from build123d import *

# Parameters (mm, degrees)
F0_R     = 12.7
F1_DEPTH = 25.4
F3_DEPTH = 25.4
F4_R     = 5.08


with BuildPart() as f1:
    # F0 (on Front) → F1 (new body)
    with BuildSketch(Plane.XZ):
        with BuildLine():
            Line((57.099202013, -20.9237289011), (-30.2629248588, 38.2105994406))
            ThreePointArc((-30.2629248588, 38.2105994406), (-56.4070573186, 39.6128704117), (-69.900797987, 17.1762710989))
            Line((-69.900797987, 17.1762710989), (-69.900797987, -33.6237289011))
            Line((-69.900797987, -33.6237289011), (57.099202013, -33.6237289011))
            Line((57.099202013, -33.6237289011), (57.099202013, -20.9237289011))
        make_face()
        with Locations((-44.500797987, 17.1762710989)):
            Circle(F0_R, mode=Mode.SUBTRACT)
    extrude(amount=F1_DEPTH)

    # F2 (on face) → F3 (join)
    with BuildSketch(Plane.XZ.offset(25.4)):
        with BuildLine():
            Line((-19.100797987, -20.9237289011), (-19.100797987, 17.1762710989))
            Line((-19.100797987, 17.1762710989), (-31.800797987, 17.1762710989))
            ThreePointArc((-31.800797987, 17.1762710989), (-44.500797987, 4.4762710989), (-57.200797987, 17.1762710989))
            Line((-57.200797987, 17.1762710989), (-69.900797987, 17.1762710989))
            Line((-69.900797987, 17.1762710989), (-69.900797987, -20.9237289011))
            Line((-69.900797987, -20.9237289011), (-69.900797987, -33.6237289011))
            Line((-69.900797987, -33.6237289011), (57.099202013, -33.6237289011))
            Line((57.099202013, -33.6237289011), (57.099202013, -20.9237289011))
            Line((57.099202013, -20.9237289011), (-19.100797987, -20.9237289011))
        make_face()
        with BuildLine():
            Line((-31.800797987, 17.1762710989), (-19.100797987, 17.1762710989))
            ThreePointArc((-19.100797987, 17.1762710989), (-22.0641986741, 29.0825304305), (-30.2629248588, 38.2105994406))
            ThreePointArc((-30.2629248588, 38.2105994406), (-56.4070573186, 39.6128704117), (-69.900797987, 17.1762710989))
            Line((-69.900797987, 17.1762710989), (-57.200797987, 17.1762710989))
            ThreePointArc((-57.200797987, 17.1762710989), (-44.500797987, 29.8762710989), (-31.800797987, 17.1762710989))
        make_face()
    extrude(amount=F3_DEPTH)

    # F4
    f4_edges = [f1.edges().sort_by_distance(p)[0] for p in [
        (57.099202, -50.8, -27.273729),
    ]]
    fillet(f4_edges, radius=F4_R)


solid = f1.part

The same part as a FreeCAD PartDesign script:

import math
import FreeCAD as App
import Part
import Sketcher
Q = App.Units.Quantity


def edges_at(feature, points):
    """Names of the edges that pass closest to the given points."""
    edges = feature.Shape.Edges
    near = lambda p: min(range(len(edges)), key=lambda i: edges[i].distToShape(Part.Vertex(*p))[0])
    return sorted({f"Edge{near(p) + 1}" for p in points})

doc = App.newDocument("Part")
body = doc.addObject("PartDesign::Body", "Body")

sketch1 = body.newObject("Sketcher::SketchObject", "Sketch")
sketch1.AttachmentSupport = (doc.getObject("XZ_Plane"), [""])
sketch1.MapMode = "FlatFace"
sketch1.addGeometry([
    Part.LineSegment(App.Vector(57.099202, -20.923729, 0), App.Vector(-30.262925, 38.210599, 0)),
    Part.ArcOfCircle(Part.Circle(App.Vector(-44.500798, 17.176271, 0), App.Vector(0, 0, 1), 25.4), math.radians(55.906421), math.radians(180)),
    Part.LineSegment(App.Vector(-69.900798, 17.176271, 0), App.Vector(-69.900798, -33.623729, 0)),
    Part.LineSegment(App.Vector(-69.900798, -33.623729, 0), App.Vector(57.099202, -33.623729, 0)),
    Part.LineSegment(App.Vector(57.099202, -33.623729, 0), App.Vector(57.099202, -20.923729, 0)),
    Part.Circle(App.Vector(-44.500798, 17.176271, 0), App.Vector(0, 0, 1), 12.7),
], False)
sketch1.addConstraint([
    Sketcher.Constraint("Tangent", 0, 2, 1, 1),
    Sketcher.Constraint("Tangent", 1, 2, 2, 1),
    Sketcher.Constraint("Coincident", 2, 2, 3, 1),
    Sketcher.Constraint("Coincident", 3, 2, 4, 1),
    Sketcher.Constraint("Coincident", 4, 2, 0, 1),
    Sketcher.Constraint("Vertical", 2),
    Sketcher.Constraint("Horizontal", 3),
    Sketcher.Constraint("Vertical", 4),
    Sketcher.Constraint("Coincident", 5, 3, 1, 3),
    Sketcher.Constraint("Diameter", 5, Q("1 in")),
    Sketcher.Constraint("Radius", 1, Q("1 in")),
    Sketcher.Constraint("DistanceX", 3, 1, 3, 2, Q("5 in")),
    Sketcher.Constraint("DistanceY", 2, 2, 2, 1, Q("2 in")),
    Sketcher.Constraint("DistanceY", 4, 1, 4, 2, Q("0.5 in")),
    Sketcher.Constraint("DistanceX", 1, 3, -1, 1, Q("1.7519999 in")),
    Sketcher.Constraint("DistanceY", -1, 1, 0, 2, 38.210599),
])
pad1 = body.newObject("PartDesign::Pad", "Pad")
pad1.Profile = sketch1
pad1.Length = Q("1 in")

sketch2 = body.newObject("Sketcher::SketchObject", "Sketch001")
sketch2.AttachmentSupport = (doc.getObject("XZ_Plane"), [""])
sketch2.MapMode = "FlatFace"
sketch2.AttachmentOffset = App.Placement(App.Vector(0, 0, 1 * 25.4), App.Rotation())
sketch2.addGeometry([
    Part.LineSegment(App.Vector(-19.100798, -20.923729, 0), App.Vector(-19.100798, 17.176271, 0)),
    Part.ArcOfCircle(Part.Circle(App.Vector(-44.500798, 17.176271, 0), App.Vector(0, 0, 1), 25.4), math.radians(0), math.radians(55.906421)),
    Part.ArcOfCircle(Part.Circle(App.Vector(-44.500798, 17.176271, 0), App.Vector(0, 0, 1), 25.4), math.radians(55.906421), math.radians(180)),
    Part.LineSegment(App.Vector(-69.900798, 17.176271, 0), App.Vector(-69.900798, -33.623729, 0)),
    Part.LineSegment(App.Vector(-69.900798, -33.623729, 0), App.Vector(57.099202, -33.623729, 0)),
    Part.LineSegment(App.Vector(57.099202, -33.623729, 0), App.Vector(57.099202, -20.923729, 0)),
    Part.LineSegment(App.Vector(57.099202, -20.923729, 0), App.Vector(-19.100798, -20.923729, 0)),
    Part.Circle(App.Vector(-44.500798, 17.176271, 0), App.Vector(0, 0, 1), 12.7),
], False)
sketch2.addConstraint([
    Sketcher.Constraint("Tangent", 0, 2, 1, 1),
    Sketcher.Constraint("Tangent", 1, 2, 2, 1),
    Sketcher.Constraint("Tangent", 2, 2, 3, 1),
    Sketcher.Constraint("Coincident", 3, 2, 4, 1),
    Sketcher.Constraint("Coincident", 4, 2, 5, 1),
    Sketcher.Constraint("Coincident", 5, 2, 6, 1),
    Sketcher.Constraint("Coincident", 6, 2, 0, 1),
    Sketcher.Constraint("Vertical", 0),
    Sketcher.Constraint("Vertical", 3),
    Sketcher.Constraint("Horizontal", 4),
    Sketcher.Constraint("Vertical", 5),
    Sketcher.Constraint("Horizontal", 6),
    Sketcher.Constraint("Coincident", 7, 3, 1, 3),
    Sketcher.Constraint("Equal", 1, 2),
    Sketcher.Constraint("Diameter", 7, Q("1 in")),
    Sketcher.Constraint("Radius", 1, Q("1 in")),
    Sketcher.Constraint("DistanceX", 4, 1, 4, 2, Q("5 in")),
    Sketcher.Constraint("DistanceY", 3, 2, 3, 1, Q("2 in")),
    Sketcher.Constraint("DistanceY", 0, 1, 0, 2, Q("1.5 in")),
    Sketcher.Constraint("DistanceX", 1, 3, -1, 1, Q("1.7519999 in")),
    Sketcher.Constraint("DistanceY", -1, 1, 1, 2, 38.210599),
    Sketcher.Constraint("DistanceY", -1, 1, 1, 3, 17.176271),
])
pad2 = body.newObject("PartDesign::Pad", "Pad001")
pad2.Profile = sketch2
pad2.Length = Q("1 in")
doc.recompute()

fillet = body.newObject("PartDesign::Fillet", "Fillet")
fillet.Base = (pad2, edges_at(pad2, [(57.099, -50.8, -27.274)]))
fillet.Radius = Q("0.2 in")

doc.recompute()
